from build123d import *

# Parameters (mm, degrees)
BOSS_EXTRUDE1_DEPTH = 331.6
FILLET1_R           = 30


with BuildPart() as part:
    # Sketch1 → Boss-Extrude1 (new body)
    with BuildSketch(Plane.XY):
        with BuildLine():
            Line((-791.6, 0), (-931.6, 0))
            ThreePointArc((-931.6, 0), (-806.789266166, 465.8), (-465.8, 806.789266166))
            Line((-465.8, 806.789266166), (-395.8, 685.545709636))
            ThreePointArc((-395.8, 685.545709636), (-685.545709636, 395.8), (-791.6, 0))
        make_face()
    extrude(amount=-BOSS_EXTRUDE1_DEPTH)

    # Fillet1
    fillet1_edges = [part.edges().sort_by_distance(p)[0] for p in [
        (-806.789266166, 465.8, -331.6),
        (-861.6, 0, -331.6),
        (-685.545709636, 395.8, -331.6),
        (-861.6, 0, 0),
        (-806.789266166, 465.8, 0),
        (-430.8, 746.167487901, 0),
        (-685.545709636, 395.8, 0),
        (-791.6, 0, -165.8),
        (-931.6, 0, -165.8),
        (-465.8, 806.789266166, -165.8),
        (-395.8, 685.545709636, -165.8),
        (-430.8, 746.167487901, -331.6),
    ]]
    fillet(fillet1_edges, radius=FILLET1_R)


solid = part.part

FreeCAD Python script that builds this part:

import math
import FreeCAD as App
import Part
import Sketcher

V = App.Vector
Q = App.Units.Quantity

doc = App.newDocument("Part")
body = doc.addObject("PartDesign::Body", "Body")

sketch1 = body.newObject("Sketcher::SketchObject", "Sketch")
sketch1.AttachmentSupport = (doc.getObject("XY_Plane"), [""])
sketch1.MapMode = "FlatFace"
sketch1.addGeometry([
    Part.LineSegment(V(-931.6, 0, 0), V(-791.6, 0, 0)),
    Part.ArcOfCircle(Part.Circle(V(0, 0, 0), V(0, 0, 1), 791.6), math.radians(120), math.radians(180)),
    Part.LineSegment(V(-395.8, 685.54571, 0), V(-465.8, 806.789266, 0)),
    Part.ArcOfCircle(Part.Circle(V(0, 0, 0), V(0, 0, 1), 931.6), math.radians(120), math.radians(180)),
], False)
sketch1.addConstraint([
    Sketcher.Constraint("Coincident", 0, 2, 1, 2),
    Sketcher.Constraint("Coincident", 1, 1, 2, 1),
    Sketcher.Constraint("Coincident", 2, 2, 3, 1),
    Sketcher.Constraint("Coincident", 3, 2, 0, 1),
    Sketcher.Constraint("Horizontal", 0),
    Sketcher.Constraint("Coincident", 1, 3, -1, 1),
    Sketcher.Constraint("Coincident", 3, 3, -1, 1),
    Sketcher.Constraint("PointOnObject", 0, 2, -1),
    Sketcher.Constraint("Radius", 1, 791.6),
    Sketcher.Constraint("Radius", 3, 931.6),
    Sketcher.Constraint("Angle", 2, Q("120 deg")),
    Sketcher.Constraint("DistanceX", 2, 2, -1, 1, 465.8),
])
pad1 = body.newObject("PartDesign::Pad", "Pad")
pad1.Profile = sketch1
pad1.Length = 331.6
pad1.Reversed = True
doc.recompute()

fillet = body.newObject("PartDesign::Fillet", "Fillet")
fillet.Base = (pad1, ["Edge1"])
fillet.UseAllEdges = True
fillet.Radius = 30

doc.recompute()
